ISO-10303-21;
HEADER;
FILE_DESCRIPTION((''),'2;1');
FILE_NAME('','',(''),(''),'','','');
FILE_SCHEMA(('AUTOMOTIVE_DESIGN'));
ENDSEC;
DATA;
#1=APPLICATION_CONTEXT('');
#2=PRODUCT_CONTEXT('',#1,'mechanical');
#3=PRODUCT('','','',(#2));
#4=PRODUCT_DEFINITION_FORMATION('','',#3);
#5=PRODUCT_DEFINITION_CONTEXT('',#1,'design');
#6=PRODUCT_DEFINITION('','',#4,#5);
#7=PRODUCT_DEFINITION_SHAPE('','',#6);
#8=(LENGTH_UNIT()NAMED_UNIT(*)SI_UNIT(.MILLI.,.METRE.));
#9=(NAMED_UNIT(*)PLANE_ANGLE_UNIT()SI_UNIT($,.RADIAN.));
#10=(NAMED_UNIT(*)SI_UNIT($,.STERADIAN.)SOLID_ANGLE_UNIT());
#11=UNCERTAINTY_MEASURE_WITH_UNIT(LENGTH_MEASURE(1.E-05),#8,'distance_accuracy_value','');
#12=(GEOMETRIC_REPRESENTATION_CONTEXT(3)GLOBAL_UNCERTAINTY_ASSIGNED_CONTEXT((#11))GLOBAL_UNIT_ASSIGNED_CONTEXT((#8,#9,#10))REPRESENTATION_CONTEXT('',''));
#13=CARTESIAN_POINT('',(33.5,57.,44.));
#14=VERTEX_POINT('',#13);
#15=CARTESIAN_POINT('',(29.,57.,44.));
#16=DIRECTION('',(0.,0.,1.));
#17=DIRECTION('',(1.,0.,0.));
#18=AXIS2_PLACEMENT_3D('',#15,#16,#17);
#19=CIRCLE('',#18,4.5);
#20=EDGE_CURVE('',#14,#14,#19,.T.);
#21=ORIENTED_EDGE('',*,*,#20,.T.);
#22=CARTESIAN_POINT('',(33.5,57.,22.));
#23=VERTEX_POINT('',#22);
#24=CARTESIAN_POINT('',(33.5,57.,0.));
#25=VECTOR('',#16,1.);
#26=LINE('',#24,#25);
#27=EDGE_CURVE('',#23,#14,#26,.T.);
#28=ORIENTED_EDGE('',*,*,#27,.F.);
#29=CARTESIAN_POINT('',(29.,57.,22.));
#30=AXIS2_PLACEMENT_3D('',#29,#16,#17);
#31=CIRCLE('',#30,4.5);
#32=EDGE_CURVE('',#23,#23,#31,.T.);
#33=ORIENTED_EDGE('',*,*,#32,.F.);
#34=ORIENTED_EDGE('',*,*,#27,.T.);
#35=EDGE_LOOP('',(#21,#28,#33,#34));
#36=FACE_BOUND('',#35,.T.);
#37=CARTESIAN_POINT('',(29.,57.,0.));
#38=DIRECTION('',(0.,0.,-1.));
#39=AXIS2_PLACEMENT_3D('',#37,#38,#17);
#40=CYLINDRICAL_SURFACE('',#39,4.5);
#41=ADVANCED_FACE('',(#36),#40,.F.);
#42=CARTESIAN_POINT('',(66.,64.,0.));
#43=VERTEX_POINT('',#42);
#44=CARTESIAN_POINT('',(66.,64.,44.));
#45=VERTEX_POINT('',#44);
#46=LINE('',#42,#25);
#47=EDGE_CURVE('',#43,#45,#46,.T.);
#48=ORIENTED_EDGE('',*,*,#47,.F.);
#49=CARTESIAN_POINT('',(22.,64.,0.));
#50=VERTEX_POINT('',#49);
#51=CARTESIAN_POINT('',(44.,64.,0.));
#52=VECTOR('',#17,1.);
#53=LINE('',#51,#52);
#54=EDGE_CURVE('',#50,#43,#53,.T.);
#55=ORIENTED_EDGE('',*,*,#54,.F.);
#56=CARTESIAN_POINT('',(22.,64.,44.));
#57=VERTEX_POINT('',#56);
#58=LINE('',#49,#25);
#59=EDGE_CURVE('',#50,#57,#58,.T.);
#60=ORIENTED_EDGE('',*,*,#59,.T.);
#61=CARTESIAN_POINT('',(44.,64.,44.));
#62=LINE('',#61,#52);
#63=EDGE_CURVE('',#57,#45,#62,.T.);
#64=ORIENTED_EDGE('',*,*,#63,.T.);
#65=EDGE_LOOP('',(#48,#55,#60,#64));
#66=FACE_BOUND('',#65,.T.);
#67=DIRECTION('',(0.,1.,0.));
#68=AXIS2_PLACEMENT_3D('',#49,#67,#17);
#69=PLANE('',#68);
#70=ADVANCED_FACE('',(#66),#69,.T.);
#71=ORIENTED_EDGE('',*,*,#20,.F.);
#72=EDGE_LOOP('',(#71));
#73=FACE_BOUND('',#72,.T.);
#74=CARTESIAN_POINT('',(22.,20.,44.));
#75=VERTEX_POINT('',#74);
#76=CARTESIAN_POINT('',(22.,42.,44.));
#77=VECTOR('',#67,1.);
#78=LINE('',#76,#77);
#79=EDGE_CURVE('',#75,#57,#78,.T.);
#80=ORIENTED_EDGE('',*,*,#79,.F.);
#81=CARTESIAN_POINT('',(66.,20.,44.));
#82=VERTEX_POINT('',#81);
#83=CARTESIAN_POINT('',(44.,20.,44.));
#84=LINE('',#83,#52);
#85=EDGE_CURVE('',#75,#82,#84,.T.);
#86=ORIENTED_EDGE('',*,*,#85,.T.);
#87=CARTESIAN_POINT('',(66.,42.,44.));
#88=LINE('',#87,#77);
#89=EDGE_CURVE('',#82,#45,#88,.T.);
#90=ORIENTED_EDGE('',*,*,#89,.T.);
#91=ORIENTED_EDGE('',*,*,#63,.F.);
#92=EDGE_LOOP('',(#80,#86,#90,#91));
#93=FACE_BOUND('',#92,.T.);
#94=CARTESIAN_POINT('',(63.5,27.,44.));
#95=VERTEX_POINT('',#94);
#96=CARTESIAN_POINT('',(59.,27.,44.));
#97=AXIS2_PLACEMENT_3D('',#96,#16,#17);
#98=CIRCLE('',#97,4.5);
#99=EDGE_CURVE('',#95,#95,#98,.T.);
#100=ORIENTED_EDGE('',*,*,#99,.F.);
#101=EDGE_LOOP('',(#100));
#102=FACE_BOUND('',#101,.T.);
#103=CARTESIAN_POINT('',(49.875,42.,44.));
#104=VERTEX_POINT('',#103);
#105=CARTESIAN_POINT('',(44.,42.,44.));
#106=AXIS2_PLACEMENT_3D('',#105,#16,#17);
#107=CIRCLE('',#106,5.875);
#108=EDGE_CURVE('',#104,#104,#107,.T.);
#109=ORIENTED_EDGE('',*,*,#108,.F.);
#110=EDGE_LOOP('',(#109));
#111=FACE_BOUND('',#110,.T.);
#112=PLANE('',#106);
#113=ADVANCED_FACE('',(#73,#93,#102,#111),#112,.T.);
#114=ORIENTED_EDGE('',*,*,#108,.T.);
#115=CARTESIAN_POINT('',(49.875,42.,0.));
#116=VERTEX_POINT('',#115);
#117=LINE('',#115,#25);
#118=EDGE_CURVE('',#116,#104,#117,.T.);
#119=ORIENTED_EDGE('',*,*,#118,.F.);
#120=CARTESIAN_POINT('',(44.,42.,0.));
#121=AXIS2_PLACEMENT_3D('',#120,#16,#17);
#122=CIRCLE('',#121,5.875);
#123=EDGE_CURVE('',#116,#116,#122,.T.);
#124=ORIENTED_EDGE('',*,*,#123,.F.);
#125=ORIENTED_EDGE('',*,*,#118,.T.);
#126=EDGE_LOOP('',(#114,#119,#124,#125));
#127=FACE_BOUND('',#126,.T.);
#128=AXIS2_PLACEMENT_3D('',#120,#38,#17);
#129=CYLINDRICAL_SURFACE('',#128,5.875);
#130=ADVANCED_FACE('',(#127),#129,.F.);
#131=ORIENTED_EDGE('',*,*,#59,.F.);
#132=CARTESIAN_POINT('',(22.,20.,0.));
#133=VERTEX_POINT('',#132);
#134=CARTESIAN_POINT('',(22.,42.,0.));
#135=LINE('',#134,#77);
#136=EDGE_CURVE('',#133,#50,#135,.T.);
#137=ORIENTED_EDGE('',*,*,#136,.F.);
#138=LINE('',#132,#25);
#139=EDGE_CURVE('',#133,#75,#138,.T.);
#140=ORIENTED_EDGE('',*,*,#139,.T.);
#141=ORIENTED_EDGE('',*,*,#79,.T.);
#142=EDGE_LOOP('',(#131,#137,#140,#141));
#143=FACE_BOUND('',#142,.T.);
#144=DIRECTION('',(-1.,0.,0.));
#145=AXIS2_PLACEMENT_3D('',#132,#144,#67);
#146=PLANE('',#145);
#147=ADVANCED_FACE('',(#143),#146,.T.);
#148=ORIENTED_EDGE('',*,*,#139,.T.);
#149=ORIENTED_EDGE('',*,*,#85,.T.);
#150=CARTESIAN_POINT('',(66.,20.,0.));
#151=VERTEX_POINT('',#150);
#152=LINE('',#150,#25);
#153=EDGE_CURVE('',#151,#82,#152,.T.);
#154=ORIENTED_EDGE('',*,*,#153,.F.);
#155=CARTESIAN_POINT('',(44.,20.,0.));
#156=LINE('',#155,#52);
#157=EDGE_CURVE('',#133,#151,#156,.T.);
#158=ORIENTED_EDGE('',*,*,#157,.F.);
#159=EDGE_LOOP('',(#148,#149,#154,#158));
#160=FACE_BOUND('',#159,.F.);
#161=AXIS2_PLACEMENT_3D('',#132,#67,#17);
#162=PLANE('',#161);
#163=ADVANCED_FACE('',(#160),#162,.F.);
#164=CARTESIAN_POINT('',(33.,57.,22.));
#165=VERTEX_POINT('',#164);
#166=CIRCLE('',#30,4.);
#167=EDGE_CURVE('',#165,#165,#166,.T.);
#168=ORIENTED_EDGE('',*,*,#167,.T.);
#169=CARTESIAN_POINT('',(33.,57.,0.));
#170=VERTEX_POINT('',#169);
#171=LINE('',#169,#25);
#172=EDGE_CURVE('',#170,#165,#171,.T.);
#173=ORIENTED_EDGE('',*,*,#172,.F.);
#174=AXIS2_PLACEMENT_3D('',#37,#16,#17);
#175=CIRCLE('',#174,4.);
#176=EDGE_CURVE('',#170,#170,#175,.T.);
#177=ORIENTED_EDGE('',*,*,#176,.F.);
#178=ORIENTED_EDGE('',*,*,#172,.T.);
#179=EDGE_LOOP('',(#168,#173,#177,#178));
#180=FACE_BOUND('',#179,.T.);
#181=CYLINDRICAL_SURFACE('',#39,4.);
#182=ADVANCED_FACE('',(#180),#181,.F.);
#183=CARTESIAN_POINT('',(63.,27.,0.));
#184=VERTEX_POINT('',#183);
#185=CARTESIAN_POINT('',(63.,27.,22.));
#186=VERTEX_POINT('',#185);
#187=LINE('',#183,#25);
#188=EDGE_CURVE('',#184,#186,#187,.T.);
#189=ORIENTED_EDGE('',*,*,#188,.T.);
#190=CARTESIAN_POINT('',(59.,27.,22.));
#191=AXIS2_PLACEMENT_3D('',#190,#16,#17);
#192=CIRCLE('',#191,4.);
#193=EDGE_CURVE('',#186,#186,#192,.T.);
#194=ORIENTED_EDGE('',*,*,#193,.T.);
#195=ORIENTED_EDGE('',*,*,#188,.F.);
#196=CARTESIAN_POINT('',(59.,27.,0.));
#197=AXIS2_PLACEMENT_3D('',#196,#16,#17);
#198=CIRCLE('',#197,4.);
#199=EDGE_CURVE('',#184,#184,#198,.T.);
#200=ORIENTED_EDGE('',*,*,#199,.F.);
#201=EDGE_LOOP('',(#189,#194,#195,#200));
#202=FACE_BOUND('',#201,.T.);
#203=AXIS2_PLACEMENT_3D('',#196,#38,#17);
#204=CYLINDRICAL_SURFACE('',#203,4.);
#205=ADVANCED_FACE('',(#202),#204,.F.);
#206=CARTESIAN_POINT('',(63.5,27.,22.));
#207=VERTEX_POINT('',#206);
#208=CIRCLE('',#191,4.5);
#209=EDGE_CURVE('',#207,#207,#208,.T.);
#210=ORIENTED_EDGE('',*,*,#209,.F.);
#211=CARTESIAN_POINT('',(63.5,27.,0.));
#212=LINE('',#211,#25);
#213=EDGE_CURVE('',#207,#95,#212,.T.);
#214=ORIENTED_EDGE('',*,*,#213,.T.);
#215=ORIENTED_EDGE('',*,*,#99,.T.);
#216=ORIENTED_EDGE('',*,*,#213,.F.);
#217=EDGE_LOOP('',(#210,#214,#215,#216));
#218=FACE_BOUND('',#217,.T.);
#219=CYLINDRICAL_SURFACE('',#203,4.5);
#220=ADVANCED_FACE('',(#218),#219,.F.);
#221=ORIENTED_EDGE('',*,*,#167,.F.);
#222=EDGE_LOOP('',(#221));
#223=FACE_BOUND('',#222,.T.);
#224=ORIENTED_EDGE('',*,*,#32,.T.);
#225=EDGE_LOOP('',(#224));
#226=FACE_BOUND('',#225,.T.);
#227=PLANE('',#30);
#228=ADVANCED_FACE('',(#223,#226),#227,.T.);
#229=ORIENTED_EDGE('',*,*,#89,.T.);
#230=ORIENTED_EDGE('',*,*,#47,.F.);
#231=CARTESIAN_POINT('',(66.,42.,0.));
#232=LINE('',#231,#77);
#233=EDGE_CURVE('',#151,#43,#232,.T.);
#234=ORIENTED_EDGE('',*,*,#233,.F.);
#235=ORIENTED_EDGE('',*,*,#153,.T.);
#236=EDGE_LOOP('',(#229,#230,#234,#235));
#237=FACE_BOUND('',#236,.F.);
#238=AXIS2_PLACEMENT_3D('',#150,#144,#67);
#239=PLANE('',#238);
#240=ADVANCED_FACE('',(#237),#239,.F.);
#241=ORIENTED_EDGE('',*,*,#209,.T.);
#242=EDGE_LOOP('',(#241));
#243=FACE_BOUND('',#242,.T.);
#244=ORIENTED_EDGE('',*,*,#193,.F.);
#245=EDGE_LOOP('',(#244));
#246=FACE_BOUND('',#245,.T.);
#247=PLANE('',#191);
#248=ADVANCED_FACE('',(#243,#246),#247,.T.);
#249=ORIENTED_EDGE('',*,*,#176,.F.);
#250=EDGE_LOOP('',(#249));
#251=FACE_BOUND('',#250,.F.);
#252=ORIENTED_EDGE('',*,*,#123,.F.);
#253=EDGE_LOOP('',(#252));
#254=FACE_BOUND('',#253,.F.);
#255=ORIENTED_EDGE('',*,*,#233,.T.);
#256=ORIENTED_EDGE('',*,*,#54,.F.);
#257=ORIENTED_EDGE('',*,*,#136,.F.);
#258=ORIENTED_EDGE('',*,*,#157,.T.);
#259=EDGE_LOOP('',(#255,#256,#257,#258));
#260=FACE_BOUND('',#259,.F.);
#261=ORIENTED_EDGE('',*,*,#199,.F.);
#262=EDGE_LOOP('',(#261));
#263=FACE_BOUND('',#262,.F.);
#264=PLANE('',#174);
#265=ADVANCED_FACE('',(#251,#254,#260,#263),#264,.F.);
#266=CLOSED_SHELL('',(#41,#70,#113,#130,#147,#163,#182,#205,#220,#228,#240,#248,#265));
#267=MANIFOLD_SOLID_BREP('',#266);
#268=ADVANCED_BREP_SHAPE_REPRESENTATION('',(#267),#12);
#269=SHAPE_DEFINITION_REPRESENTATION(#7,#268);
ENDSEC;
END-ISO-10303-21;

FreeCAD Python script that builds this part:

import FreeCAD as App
import Part
import Sketcher
from FreeCAD import Vector

doc = App.newDocument("Part")
body = doc.addObject("PartDesign::Body", "Body")

# Sketch on XY plane
sketch1 = body.newObject("Sketcher::SketchObject", "Sketch")
sketch1.AttachmentSupport = (doc.getObject("XY_Plane"), [""])
sketch1.MapMode = "FlatFace"
sketch1.addGeometry([
    Part.LineSegment(Vector(22, 64, 0), Vector(22, 20, 0)),  # 0
    Part.LineSegment(Vector(22, 20, 0), Vector(66, 20, 0)),  # 1
    Part.LineSegment(Vector(66, 20, 0), Vector(66, 64, 0)),  # 2
    Part.LineSegment(Vector(66, 64, 0), Vector(22, 64, 0)),  # 3
    Part.Circle(Vector(59, 27, 0), Vector(0, 0, 1), 4.5),  # 4
    Part.Circle(Vector(29, 57, 0), Vector(0, 0, 1), 4.5),  # 5
    Part.Circle(Vector(44, 42, 0), Vector(0, 0, 1), 5.9),  # 6
], False)
sketch1.addConstraint([
    Sketcher.Constraint("Coincident", 0, 2, 1, 1),
    Sketcher.Constraint("Coincident", 1, 2, 2, 1),
    Sketcher.Constraint("Coincident", 2, 2, 3, 1),
    Sketcher.Constraint("Coincident", 3, 2, 0, 1),
    Sketcher.Constraint("Vertical", 0),
    Sketcher.Constraint("Horizontal", 1),
    Sketcher.Constraint("Vertical", 2),
    Sketcher.Constraint("Horizontal", 3),
    Sketcher.Constraint("Equal", 4, 5),
    Sketcher.Constraint("Equal", 3, 0),
    Sketcher.Constraint("Diameter", 4, 9.0),
    Sketcher.Constraint("Diameter", 6, 11.75),
    Sketcher.Constraint("DistanceX", 1, 1, 1, 2, 44.0),
    Sketcher.Constraint("DistanceX", -1, 1, 4, 3, 59.0),
    Sketcher.Constraint("DistanceY", -1, 1, 4, 3, 27.0),
    Sketcher.Constraint("DistanceX", -1, 1, 5, 3, 29.0),
    Sketcher.Constraint("DistanceY", -1, 1, 5, 3, 57.0),
    Sketcher.Constraint("DistanceX", -1, 1, 6, 3, 44.0),
    Sketcher.Constraint("DistanceY", -1, 1, 6, 3, 42.0),
    Sketcher.Constraint("DistanceX", -1, 1, 0, 2, 22.0),
    Sketcher.Constraint("DistanceY", -1, 1, 0, 2, 20.0),
])
pad1 = body.newObject("PartDesign::Pad", "Pad")
pad1.Profile = sketch1
pad1.Length = 44

# Sketch on XY plane
sketch2 = body.newObject("Sketcher::SketchObject", "Sketch001")
sketch2.AttachmentSupport = (doc.getObject("XY_Plane"), [""])
sketch2.MapMode = "FlatFace"
sketch2.addGeometry([
    Part.Circle(Vector(29, 57, 0), Vector(0, 0, 1), 4.5),
    Part.Circle(Vector(29, 57, 0), Vector(0, 0, 1), 4),
    Part.Circle(Vector(59, 27, 0), Vector(0, 0, 1), 4.5),
    Part.Circle(Vector(59, 27, 0), Vector(0, 0, 1), 4),
], False)
sketch2.addConstraint([
    Sketcher.Constraint("Coincident", 1, 3, 0, 3),
    Sketcher.Constraint("Coincident", 3, 3, 2, 3),
    Sketcher.Constraint("Equal", 0, 2),
    Sketcher.Constraint("Equal", 1, 3),
    Sketcher.Constraint("Diameter", 0, 9.0),
    Sketcher.Constraint("Diameter", 1, 8.0),
    Sketcher.Constraint("DistanceX", -1, 1, 0, 3, 29.0),
    Sketcher.Constraint("DistanceY", -1, 1, 0, 3, 57.0),
    Sketcher.Constraint("DistanceX", -1, 1, 2, 3, 59.0),
    Sketcher.Constraint("DistanceY", -1, 1, 2, 3, 27.0),
])
pad2 = body.newObject("PartDesign::Pad", "Pad001")
pad2.Profile = sketch2
pad2.Length = 22

doc.recompute()
